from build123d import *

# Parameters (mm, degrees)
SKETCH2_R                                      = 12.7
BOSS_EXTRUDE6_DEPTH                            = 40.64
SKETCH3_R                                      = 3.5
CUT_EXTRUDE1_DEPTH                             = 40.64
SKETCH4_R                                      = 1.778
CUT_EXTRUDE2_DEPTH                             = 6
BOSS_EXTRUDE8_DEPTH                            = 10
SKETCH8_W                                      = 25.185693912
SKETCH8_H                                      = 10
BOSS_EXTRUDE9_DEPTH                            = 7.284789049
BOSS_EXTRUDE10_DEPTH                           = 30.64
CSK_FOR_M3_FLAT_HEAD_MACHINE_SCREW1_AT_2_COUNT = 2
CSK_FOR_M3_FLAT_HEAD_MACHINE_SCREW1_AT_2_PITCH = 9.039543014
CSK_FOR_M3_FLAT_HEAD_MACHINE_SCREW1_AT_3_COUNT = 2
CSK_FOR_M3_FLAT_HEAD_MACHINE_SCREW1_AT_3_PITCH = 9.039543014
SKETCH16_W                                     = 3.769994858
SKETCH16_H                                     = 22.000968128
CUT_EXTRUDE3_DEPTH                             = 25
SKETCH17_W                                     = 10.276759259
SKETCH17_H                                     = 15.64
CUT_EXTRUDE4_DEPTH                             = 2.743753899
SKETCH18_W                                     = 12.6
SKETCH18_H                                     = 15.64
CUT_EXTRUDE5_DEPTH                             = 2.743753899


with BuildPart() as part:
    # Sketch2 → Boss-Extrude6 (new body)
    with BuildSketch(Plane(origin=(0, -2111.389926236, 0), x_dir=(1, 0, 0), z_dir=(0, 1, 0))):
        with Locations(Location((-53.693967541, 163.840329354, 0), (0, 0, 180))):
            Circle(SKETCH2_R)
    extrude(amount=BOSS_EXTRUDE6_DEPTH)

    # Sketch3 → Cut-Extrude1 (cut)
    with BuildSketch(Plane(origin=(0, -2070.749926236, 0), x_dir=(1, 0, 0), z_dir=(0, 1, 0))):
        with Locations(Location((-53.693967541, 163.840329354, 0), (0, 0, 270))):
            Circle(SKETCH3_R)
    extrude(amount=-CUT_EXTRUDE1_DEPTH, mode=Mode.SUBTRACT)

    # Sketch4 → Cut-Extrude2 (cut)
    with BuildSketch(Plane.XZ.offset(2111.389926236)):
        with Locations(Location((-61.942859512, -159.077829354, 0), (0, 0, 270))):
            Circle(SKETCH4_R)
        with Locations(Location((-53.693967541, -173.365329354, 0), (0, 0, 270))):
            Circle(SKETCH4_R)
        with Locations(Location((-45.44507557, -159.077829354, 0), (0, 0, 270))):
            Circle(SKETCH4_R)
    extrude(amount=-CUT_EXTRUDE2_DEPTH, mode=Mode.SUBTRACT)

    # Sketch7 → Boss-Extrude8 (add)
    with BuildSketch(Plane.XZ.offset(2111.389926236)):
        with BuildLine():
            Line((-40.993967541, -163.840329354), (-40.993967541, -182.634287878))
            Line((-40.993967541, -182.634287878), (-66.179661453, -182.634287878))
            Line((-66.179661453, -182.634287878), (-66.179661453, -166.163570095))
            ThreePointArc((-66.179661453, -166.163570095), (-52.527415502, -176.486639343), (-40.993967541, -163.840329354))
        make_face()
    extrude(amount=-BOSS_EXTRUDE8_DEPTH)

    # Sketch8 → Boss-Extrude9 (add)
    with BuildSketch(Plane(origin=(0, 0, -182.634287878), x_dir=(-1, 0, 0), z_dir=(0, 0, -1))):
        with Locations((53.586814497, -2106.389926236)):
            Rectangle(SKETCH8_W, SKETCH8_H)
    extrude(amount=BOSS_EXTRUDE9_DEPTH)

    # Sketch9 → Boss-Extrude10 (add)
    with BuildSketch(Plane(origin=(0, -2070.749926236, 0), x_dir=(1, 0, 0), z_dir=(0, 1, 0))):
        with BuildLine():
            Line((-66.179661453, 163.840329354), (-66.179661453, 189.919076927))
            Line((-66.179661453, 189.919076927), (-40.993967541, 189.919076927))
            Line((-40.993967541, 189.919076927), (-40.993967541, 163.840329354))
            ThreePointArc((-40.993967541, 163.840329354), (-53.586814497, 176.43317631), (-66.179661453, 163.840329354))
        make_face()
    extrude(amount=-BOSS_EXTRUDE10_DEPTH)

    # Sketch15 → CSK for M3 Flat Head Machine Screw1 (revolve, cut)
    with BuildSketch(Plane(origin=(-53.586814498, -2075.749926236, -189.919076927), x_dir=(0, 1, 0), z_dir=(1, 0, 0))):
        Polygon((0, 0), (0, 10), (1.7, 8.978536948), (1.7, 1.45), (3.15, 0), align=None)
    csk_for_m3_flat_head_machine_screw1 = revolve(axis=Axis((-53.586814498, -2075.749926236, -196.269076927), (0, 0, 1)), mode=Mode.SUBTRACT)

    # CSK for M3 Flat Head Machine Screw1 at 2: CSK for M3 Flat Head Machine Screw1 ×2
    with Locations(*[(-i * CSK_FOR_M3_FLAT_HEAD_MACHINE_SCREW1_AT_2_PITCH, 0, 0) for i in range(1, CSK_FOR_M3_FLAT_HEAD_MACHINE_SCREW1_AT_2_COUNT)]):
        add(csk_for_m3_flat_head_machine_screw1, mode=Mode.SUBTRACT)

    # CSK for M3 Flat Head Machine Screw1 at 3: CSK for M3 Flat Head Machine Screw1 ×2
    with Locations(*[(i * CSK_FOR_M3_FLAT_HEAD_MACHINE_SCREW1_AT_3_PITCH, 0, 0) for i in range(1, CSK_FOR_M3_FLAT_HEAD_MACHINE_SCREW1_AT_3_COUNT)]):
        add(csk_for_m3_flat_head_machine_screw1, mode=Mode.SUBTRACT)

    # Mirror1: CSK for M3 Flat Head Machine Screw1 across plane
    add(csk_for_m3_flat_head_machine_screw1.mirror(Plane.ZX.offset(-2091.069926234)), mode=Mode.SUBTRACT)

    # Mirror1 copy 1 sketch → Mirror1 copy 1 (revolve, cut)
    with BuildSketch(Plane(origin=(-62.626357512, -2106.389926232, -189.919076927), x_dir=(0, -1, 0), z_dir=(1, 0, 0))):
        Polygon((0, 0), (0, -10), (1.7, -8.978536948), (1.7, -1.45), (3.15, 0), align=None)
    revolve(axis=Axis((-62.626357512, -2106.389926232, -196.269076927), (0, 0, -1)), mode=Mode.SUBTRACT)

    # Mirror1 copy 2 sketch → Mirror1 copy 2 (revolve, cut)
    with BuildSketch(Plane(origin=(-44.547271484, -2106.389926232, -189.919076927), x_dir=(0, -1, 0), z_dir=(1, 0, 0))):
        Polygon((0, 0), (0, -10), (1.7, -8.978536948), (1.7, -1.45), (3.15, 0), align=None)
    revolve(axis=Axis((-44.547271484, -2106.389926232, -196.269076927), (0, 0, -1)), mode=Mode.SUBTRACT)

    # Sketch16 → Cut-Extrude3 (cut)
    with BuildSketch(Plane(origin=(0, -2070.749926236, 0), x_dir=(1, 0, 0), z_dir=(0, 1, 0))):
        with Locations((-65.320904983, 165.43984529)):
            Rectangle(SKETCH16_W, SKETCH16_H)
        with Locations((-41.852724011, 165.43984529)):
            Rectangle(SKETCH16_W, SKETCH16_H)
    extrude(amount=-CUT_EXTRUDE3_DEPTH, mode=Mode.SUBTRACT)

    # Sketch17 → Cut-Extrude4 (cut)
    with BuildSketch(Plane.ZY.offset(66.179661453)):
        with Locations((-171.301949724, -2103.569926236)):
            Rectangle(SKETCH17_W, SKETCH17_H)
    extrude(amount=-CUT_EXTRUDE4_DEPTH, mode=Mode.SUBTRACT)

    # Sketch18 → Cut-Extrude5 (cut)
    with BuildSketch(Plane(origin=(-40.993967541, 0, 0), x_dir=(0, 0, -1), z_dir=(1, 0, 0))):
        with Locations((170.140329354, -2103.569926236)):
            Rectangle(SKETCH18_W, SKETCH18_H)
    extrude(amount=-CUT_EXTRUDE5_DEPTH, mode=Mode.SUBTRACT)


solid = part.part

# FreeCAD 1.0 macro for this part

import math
import FreeCAD as App
import Part
import Sketcher
from FreeCAD import Vector
Q = App.Units.Quantity

doc = App.newDocument("Part")
body = doc.addObject("PartDesign::Body", "Body")

sketch1 = doc.addObject("Sketcher::SketchObject", "Sketch")
body.addObject(sketch1)
sketch1.AttachmentSupport = (doc.XZ_Plane, [""])
sketch1.MapMode = "FlatFace"
sketch1.AttachmentOffset = App.Placement(Vector(0, 0, 2111.389926), App.Rotation())
sketch1.addGeometry(Part.Circle(Vector(-54, -164, 0), Vector(0, 0, 1), 13), False)
sketch1.addConstraint([
    Sketcher.Constraint("Diameter", 0, Q("25.4 mm")),
    Sketcher.Constraint("DistanceY", 0, 3, -1, 1, Q("163.840329 mm")),
    Sketcher.Constraint("DistanceX", 0, 3, -1, 1, Q("53.693968 mm")),
])
pad1 = doc.addObject("PartDesign::Pad", "Pad")
body.addObject(pad1)
pad1.Profile = sketch1
pad1.Length = 40.64
pad1.Reversed = True

sketch2 = doc.addObject("Sketcher::SketchObject", "Sketch001")
body.addObject(sketch2)
sketch2.AttachmentSupport = (doc.XZ_Plane, [""])
sketch2.MapMode = "FlatFace"
sketch2.AttachmentOffset = App.Placement(Vector(0, 0, 2070.749926), App.Rotation())
sketch2.addGeometry(Part.Circle(Vector(-53.7, -163.8, 0), Vector(0, 0, 1), 3.5), False)
sketch2.addConstraint([
    Sketcher.Constraint("Diameter", 0, Q("7 mm")),
    Sketcher.Constraint("DistanceY", 0, 3, -1, 1, Q("163.840329 mm")),
    Sketcher.Constraint("DistanceX", 0, 3, -1, 1, Q("53.693968 mm")),
])
pocket1 = doc.addObject("PartDesign::Pocket", "Pocket")
body.addObject(pocket1)
pocket1.Profile = sketch2
pocket1.Length = 40.64
pocket1.Reversed = True

sketch3 = doc.addObject("Sketcher::SketchObject", "Sketch002")
body.addObject(sketch3)
sketch3.AttachmentSupport = (doc.XZ_Plane, [""])
sketch3.MapMode = "FlatFace"
sketch3.AttachmentOffset = App.Placement(Vector(0, 0, 2111.389926), App.Rotation())
sketch3.addGeometry([
    Part.Circle(Vector(-61.9, -159.1, 0), Vector(0, 0, 1), 1.8),
    Part.Circle(Vector(-53.7, -173.4, 0), Vector(0, 0, 1), 1.8),
    Part.Circle(Vector(-45.4, -159.1, 0), Vector(0, 0, 1), 1.8),
], False)
sketch3.addConstraint([
    Sketcher.Constraint("Equal", 0, 1),
    Sketcher.Constraint("Equal", 1, 2),
    Sketcher.Constraint("Horizontal", 0, 3, 2, 3),
    Sketcher.Constraint("Diameter", 0, Q("3.556 mm")),
    Sketcher.Constraint("DistanceY", 1, 3, 0, 3, Q("14.2875 mm")),
    Sketcher.Constraint("DistanceX", 0, 3, -1, 1, Q("61.94286 mm")),
    Sketcher.Constraint("DistanceY", 0, 3, -1, 1, Q("159.077829 mm")),
    Sketcher.Constraint("DistanceX", 0, 3, 1, 3, Q("8.248892 mm")),
    Sketcher.Constraint("DistanceX", 1, 3, 2, 3, Q("8.248892 mm")),
])
pocket2 = doc.addObject("PartDesign::Pocket", "Pocket001")
body.addObject(pocket2)
pocket2.Profile = sketch3
pocket2.Length = 6

sketch4 = doc.addObject("Sketcher::SketchObject", "Sketch003")
body.addObject(sketch4)
sketch4.AttachmentSupport = (doc.XZ_Plane, [""])
sketch4.MapMode = "FlatFace"
sketch4.AttachmentOffset = App.Placement(Vector(0, 0, 2111.389926), App.Rotation())
sketch4.addGeometry([
    Part.LineSegment(Vector(-41, -183, 0), Vector(-41, -164, 0)),
    Part.ArcOfCircle(Part.Circle(Vector(-54, -164, 0), Vector(0, 0, 1), 13), math.radians(-169), math.radians(0)),
    Part.LineSegment(Vector(-66, -166, 0), Vector(-66, -183, 0)),
    Part.LineSegment(Vector(-66, -183, 0), Vector(-41, -183, 0)),
], False)
sketch4.addConstraint([
    Sketcher.Constraint("Tangent", 0, 2, 1, 2),
    Sketcher.Constraint("Coincident", 1, 1, 2, 1),
    Sketcher.Constraint("Coincident", 2, 2, 3, 1),
    Sketcher.Constraint("Coincident", 3, 2, 0, 1),
    Sketcher.Constraint("Vertical", 0),
    Sketcher.Constraint("Vertical", 2),
    Sketcher.Constraint("Horizontal", 3),
    Sketcher.Constraint("Radius", 1, Q("12.7 mm")),
    Sketcher.Constraint("DistanceY", 0, 1, 0, 2, Q("18.793959 mm")),
    Sketcher.Constraint("DistanceX", 3, 1, 3, 2, Q("25.185694 mm")),
    Sketcher.Constraint("DistanceY", 1, 3, -1, 1, Q("163.840329 mm")),
    Sketcher.Constraint("DistanceX", 1, 1, -1, 1, Q("66.179661 mm")),
])
pad2 = doc.addObject("PartDesign::Pad", "Pad001")
body.addObject(pad2)
pad2.Profile = sketch4
pad2.Length = 10
pad2.Reversed = True

sketch5 = doc.addObject("Sketcher::SketchObject", "Sketch004")
body.addObject(sketch5)
sketch5.AttachmentSupport = (doc.XY_Plane, [""])
sketch5.MapMode = "FlatFace"
sketch5.AttachmentOffset = App.Placement(Vector(0, 0, -182.634288), App.Rotation())
sketch5.addGeometry([
    Part.LineSegment(Vector(-41, -2101, 0), Vector(-41, -2111, 0)),
    Part.LineSegment(Vector(-41, -2111, 0), Vector(-66, -2111, 0)),
    Part.LineSegment(Vector(-66, -2111, 0), Vector(-66, -2101, 0)),
    Part.LineSegment(Vector(-66, -2101, 0), Vector(-41, -2101, 0)),
], False)
sketch5.addConstraint([
    Sketcher.Constraint("Coincident", 0, 2, 1, 1),
    Sketcher.Constraint("Coincident", 1, 2, 2, 1),
    Sketcher.Constraint("Coincident", 2, 2, 3, 1),
    Sketcher.Constraint("Coincident", 3, 2, 0, 1),
    Sketcher.Constraint("Vertical", 0),
    Sketcher.Constraint("Horizontal", 1),
    Sketcher.Constraint("Vertical", 2),
    Sketcher.Constraint("Horizontal", 3),
    Sketcher.Constraint("DistanceY", 0, 2, 0, 1, Q("10 mm")),
    Sketcher.Constraint("DistanceX", 1, 2, 1, 1, Q("25.185694 mm")),
    Sketcher.Constraint("DistanceX", 1, 2, -1, 1, Q("66.179661 mm")),
    Sketcher.Constraint("DistanceY", 0, 2, -1, 1, Q("2111.389926 mm")),
])
pad3 = doc.addObject("PartDesign::Pad", "Pad002")
body.addObject(pad3)
pad3.Profile = sketch5
pad3.Length = 7.284789
pad3.Reversed = True

sketch6 = doc.addObject("Sketcher::SketchObject", "Sketch005")
body.addObject(sketch6)
sketch6.AttachmentSupport = (doc.XZ_Plane, [""])
sketch6.MapMode = "FlatFace"
sketch6.AttachmentOffset = App.Placement(Vector(0, 0, 2070.749926), App.Rotation())
sketch6.addGeometry([
    Part.LineSegment(Vector(-66, -190, 0), Vector(-66, -164, 0)),
    Part.ArcOfCircle(Part.Circle(Vector(-54, -164, 0), Vector(0, 0, 1), 13), math.radians(180), math.radians(360)),
    Part.LineSegment(Vector(-41, -164, 0), Vector(-41, -190, 0)),
    Part.LineSegment(Vector(-41, -190, 0), Vector(-66, -190, 0)),
], False)
sketch6.addConstraint([
    Sketcher.Constraint("Tangent", 0, 2, 1, 1),
    Sketcher.Constraint("Tangent", 1, 2, 2, 1),
    Sketcher.Constraint("Coincident", 2, 2, 3, 1),
    Sketcher.Constraint("Coincident", 3, 2, 0, 1),
    Sketcher.Constraint("Vertical", 0),
    Sketcher.Constraint("Vertical", 2),
    Sketcher.Constraint("Horizontal", 3),
    Sketcher.Constraint("Radius", 1, Q("12.592847 mm")),
    Sketcher.Constraint("DistanceY", 0, 1, 0, 2, Q("26.078748 mm")),
    Sketcher.Constraint("DistanceY", 1, 3, -1, 1, Q("163.840329 mm")),
    Sketcher.Constraint("DistanceX", 0, 2, -1, 1, Q("66.179661 mm")),
])
pad4 = doc.addObject("PartDesign::Pad", "Pad003")
body.addObject(pad4)
pad4.Profile = sketch6
pad4.Length = 30.64

sketch7 = doc.addObject("Sketcher::SketchObject", "Sketch006")
body.addObject(sketch7)
sketch7.AttachmentSupport = (doc.YZ_Plane, [""])
sketch7.MapMode = "FlatFace"
sketch7.AttachmentOffset = App.Placement(Vector(0, 0, -53.586814), App.Rotation())
sketch7.addGeometry([
    Part.LineSegment(Vector(-2075.7, -179.9, 0), Vector(-2075.7, -189.9, 0)),
    Part.LineSegment(Vector(-2075.7, -189.9, 0), Vector(-2072.6, -189.9, 0)),
    Part.LineSegment(Vector(-2072.6, -189.9, 0), Vector(-2074, -188.5, 0)),
    Part.LineSegment(Vector(-2074, -188.5, 0), Vector(-2074, -180.9, 0)),
    Part.LineSegment(Vector(-2074, -180.9, 0), Vector(-2075.7, -179.9, 0)),
], False)
sketch7.addGeometry(Part.LineSegment(Vector(-2075.7, -189.9, 0), Vector(-2075.7, -179.9, 0)), True)
sketch7.addConstraint([
    Sketcher.Constraint("Coincident", 0, 2, 1, 1),
    Sketcher.Constraint("Coincident", 1, 2, 2, 1),
    Sketcher.Constraint("Coincident", 2, 2, 3, 1),
    Sketcher.Constraint("Coincident", 3, 2, 4, 1),
    Sketcher.Constraint("Coincident", 4, 2, 0, 1),
    Sketcher.Constraint("Vertical", 0),
    Sketcher.Constraint("Horizontal", 1),
    Sketcher.Constraint("Vertical", 3),
    Sketcher.Constraint("Vertical", 5),
    Sketcher.Constraint("Coincident", 5, 1, 0, 2),
    Sketcher.Constraint("Equal", 0, 5),
    Sketcher.Constraint("DistanceY", 0, 2, 0, 1, Q("10 mm")),
    Sketcher.Constraint("Angle", 2, Q("135 deg")),
    Sketcher.Constraint("Angle", 4, Q("149 deg")),
    Sketcher.Constraint("DistanceX", 1, 1, 1, 2, Q("3.15 mm")),
    Sketcher.Constraint("DistanceX", 0, 2, 2, 2, Q("1.7 mm")),
    Sketcher.Constraint("DistanceY", 3, 2, -1, 1, Q("180.94054 mm")),
    Sketcher.Constraint("DistanceX", 0, 2, -1, 1, Q("2075.749926 mm")),
])
groove = doc.addObject("PartDesign::Groove", "Groove")
body.addObject(groove)
groove.Profile = sketch7
groove.ReferenceAxis = (sketch7, ["Axis0"])
groove.Angle = 360
doc.recompute()

linearpattern = doc.addObject("PartDesign::LinearPattern", "LinearPattern")
body.addObject(linearpattern)
linearpattern.Originals = [groove]
linearpattern.Direction = (doc.X_Axis, [""])
linearpattern.Mode = "offset"
linearpattern.Offset = 9.039543
linearpattern.Occurrences = 2
linearpattern.Reversed = True
body.Tip = linearpattern
doc.recompute()

linearpattern2 = doc.addObject("PartDesign::LinearPattern", "LinearPattern001")
body.addObject(linearpattern2)
linearpattern2.Originals = [groove]
linearpattern2.Direction = (doc.X_Axis, [""])
linearpattern2.Mode = "offset"
linearpattern2.Offset = 9.039543
linearpattern2.Occurrences = 2
body.Tip = linearpattern2
doc.recompute()

datumplane = doc.addObject("PartDesign::Plane", "DatumPlane")
body.addObject(datumplane)
datumplane.AttachmentSupport = (doc.XZ_Plane, [""])
datumplane.MapMode = "FlatFace"
datumplane.AttachmentOffset = App.Placement(Vector(0, 0, 2091.069926), App.Rotation())
mirrored = doc.addObject("PartDesign::Mirrored", "Mirrored")
body.addObject(mirrored)
mirrored.Originals = [groove]
mirrored.MirrorPlane = (datumplane, [""])
body.Tip = mirrored

sketch8 = doc.addObject("Sketcher::SketchObject", "Sketch007")
body.addObject(sketch8)
sketch8.AttachmentSupport = (doc.YZ_Plane, [""])
sketch8.MapMode = "FlatFace"
sketch8.AttachmentOffset = App.Placement(Vector(0, 0, -62.626358), App.Rotation())
sketch8.addGeometry([
    Part.LineSegment(Vector(-2106.4, -189.9, 0), Vector(-2106.4, -179.9, 0)),
    Part.LineSegment(Vector(-2106.4, -179.9, 0), Vector(-2108.1, -180.9, 0)),
    Part.LineSegment(Vector(-2108.1, -180.9, 0), Vector(-2108.1, -188.5, 0)),
    Part.LineSegment(Vector(-2108.1, -188.5, 0), Vector(-2109.5, -189.9, 0)),
    Part.LineSegment(Vector(-2109.5, -189.9, 0), Vector(-2106.4, -189.9, 0)),
], False)
sketch8.addGeometry(Part.LineSegment(Vector(-2106.4, -179.9, 0), Vector(-2106.4, -189.9, 0)), True)
sketch8.addConstraint([
    Sketcher.Constraint("Coincident", 0, 2, 1, 1),
    Sketcher.Constraint("Coincident", 1, 2, 2, 1),
    Sketcher.Constraint("Coincident", 2, 2, 3, 1),
    Sketcher.Constraint("Coincident", 3, 2, 4, 1),
    Sketcher.Constraint("Coincident", 4, 2, 0, 1),
    Sketcher.Constraint("Vertical", 0),
    Sketcher.Constraint("Vertical", 2),
    Sketcher.Constraint("Horizontal", 4),
    Sketcher.Constraint("Vertical", 5),
    Sketcher.Constraint("Coincident", 5, 1, 0, 2),
    Sketcher.Constraint("Horizontal", 3, 2, 5, 2),
    Sketcher.Constraint("DistanceY", 0, 1, 0, 2, Q("10 mm")),
    Sketcher.Constraint("Angle", 1, Q("-149 deg")),
    Sketcher.Constraint("Angle", 3, Q("-135 deg")),
    Sketcher.Constraint("DistanceX", 4, 1, 4, 2, Q("3.15 mm")),
    Sketcher.Constraint("DistanceX", 1, 2, 0, 2, Q("1.7 mm")),
    Sketcher.Constraint("DistanceY", 1, 2, -1, 1, Q("180.94054 mm")),
    Sketcher.Constraint("DistanceX", 0, 2, -1, 1, Q("2106.389926 mm")),
])
groove2 = doc.addObject("PartDesign::Groove", "Groove001")
body.addObject(groove2)
groove2.Profile = sketch8
groove2.ReferenceAxis = (sketch8, ["Axis0"])
groove2.Angle = 360

sketch9 = doc.addObject("Sketcher::SketchObject", "Sketch008")
body.addObject(sketch9)
sketch9.AttachmentSupport = (doc.YZ_Plane, [""])
sketch9.MapMode = "FlatFace"
sketch9.AttachmentOffset = App.Placement(Vector(0, 0, -44.547271), App.Rotation())
sketch9.addGeometry([
    Part.LineSegment(Vector(-2106.4, -189.9, 0), Vector(-2106.4, -179.9, 0)),
    Part.LineSegment(Vector(-2106.4, -179.9, 0), Vector(-2108.1, -180.9, 0)),
    Part.LineSegment(Vector(-2108.1, -180.9, 0), Vector(-2108.1, -188.5, 0)),
    Part.LineSegment(Vector(-2108.1, -188.5, 0), Vector(-2109.5, -189.9, 0)),
    Part.LineSegment(Vector(-2109.5, -189.9, 0), Vector(-2106.4, -189.9, 0)),
], False)
sketch9.addGeometry(Part.LineSegment(Vector(-2106.4, -179.9, 0), Vector(-2106.4, -189.9, 0)), True)
sketch9.addConstraint([
    Sketcher.Constraint("Coincident", 0, 2, 1, 1),
    Sketcher.Constraint("Coincident", 1, 2, 2, 1),
    Sketcher.Constraint("Coincident", 2, 2, 3, 1),
    Sketcher.Constraint("Coincident", 3, 2, 4, 1),
    Sketcher.Constraint("Coincident", 4, 2, 0, 1),
    Sketcher.Constraint("Vertical", 0),
    Sketcher.Constraint("Vertical", 2),
    Sketcher.Constraint("Horizontal", 4),
    Sketcher.Constraint("Vertical", 5),
    Sketcher.Constraint("Coincident", 5, 1, 0, 2),
    Sketcher.Constraint("Horizontal", 3, 2, 5, 2),
    Sketcher.Constraint("DistanceY", 0, 1, 0, 2, Q("10 mm")),
    Sketcher.Constraint("Angle", 1, Q("-149 deg")),
    Sketcher.Constraint("Angle", 3, Q("-135 deg")),
    Sketcher.Constraint("DistanceX", 4, 1, 4, 2, Q("3.15 mm")),
    Sketcher.Constraint("DistanceX", 1, 2, 0, 2, Q("1.7 mm")),
    Sketcher.Constraint("DistanceY", 1, 2, -1, 1, Q("180.94054 mm")),
    Sketcher.Constraint("DistanceX", 0, 2, -1, 1, Q("2106.389926 mm")),
])
groove3 = doc.addObject("PartDesign::Groove", "Groove002")
body.addObject(groove3)
groove3.Profile = sketch9
groove3.ReferenceAxis = (sketch9, ["Axis0"])
groove3.Angle = 360

sketch10 = doc.addObject("Sketcher::SketchObject", "Sketch009")
body.addObject(sketch10)
sketch10.AttachmentSupport = (doc.XZ_Plane, [""])
sketch10.MapMode = "FlatFace"
sketch10.AttachmentOffset = App.Placement(Vector(0, 0, 2070.749926), App.Rotation())
sketch10.addGeometry([
    Part.LineSegment(Vector(-67.2, -176.4, 0), Vector(-67.2, -154.4, 0)),
    Part.LineSegment(Vector(-67.2, -154.4, 0), Vector(-63.4, -154.4, 0)),
    Part.LineSegment(Vector(-63.4, -154.4, 0), Vector(-63.4, -176.4, 0)),
    Part.LineSegment(Vector(-63.4, -176.4, 0), Vector(-67.2, -176.4, 0)),
    Part.LineSegment(Vector(-43.7, -176.4, 0), Vector(-43.7, -154.4, 0)),
    Part.LineSegment(Vector(-43.7, -154.4, 0), Vector(-40, -154.4, 0)),
    Part.LineSegment(Vector(-40, -154.4, 0), Vector(-40, -176.4, 0)),
    Part.LineSegment(Vector(-40, -176.4, 0), Vector(-43.7, -176.4, 0)),
], False)
sketch10.addConstraint([
    Sketcher.Constraint("Coincident", 0, 2, 1, 1),
    Sketcher.Constraint("Coincident", 1, 2, 2, 1),
    Sketcher.Constraint("Coincident", 2, 2, 3, 1),
    Sketcher.Constraint("Coincident", 3, 2, 0, 1),
    Sketcher.Constraint("Coincident", 4, 2, 5, 1),
    Sketcher.Constraint("Coincident", 5, 2, 6, 1),
    Sketcher.Constraint("Coincident", 6, 2, 7, 1),
    Sketcher.Constraint("Coincident", 7, 2, 4, 1),
    Sketcher.Constraint("Vertical", 0),
    Sketcher.Constraint("Horizontal", 1),
    Sketcher.Constraint("Vertical", 2),
    Sketcher.Constraint("Horizontal", 3),
    Sketcher.Constraint("Vertical", 4),
    Sketcher.Constraint("Horizontal", 5),
    Sketcher.Constraint("Vertical", 6),
    Sketcher.Constraint("Horizontal", 7),
    Sketcher.Constraint("Horizontal", 1, 2, 4, 2),
    Sketcher.Constraint("Horizontal", 3, 2, 6, 2),
    Sketcher.Constraint("Equal", 3, 5),
    Sketcher.Constraint("DistanceY", 0, 1, 0, 2, Q("22.000968 mm")),
    Sketcher.Constraint("DistanceX", 1, 1, 1, 2, Q("3.769995 mm")),
    Sketcher.Constraint("DistanceY", 0, 2, -1, 1, Q("154.439361 mm")),
    Sketcher.Constraint("DistanceX", 4, 2, -1, 1, Q("43.737721 mm")),
    Sketcher.Constraint("DistanceX", 0, 2, 4, 2, Q("23.468181 mm")),
])
pocket3 = doc.addObject("PartDesign::Pocket", "Pocket002")
body.addObject(pocket3)
pocket3.Profile = sketch10
pocket3.Length = 25
pocket3.Reversed = True

sketch11 = doc.addObject("Sketcher::SketchObject", "Sketch010")
body.addObject(sketch11)
sketch11.AttachmentSupport = (doc.YZ_Plane, [""])
sketch11.MapMode = "FlatFace"
sketch11.AttachmentOffset = App.Placement(Vector(0, 0, -66.179661), App.Rotation())
sketch11.addGeometry([
    Part.LineSegment(Vector(-2096, -176, 0), Vector(-2111, -176, 0)),
    Part.LineSegment(Vector(-2111, -176, 0), Vector(-2111, -166, 0)),
    Part.LineSegment(Vector(-2111, -166, 0), Vector(-2096, -166, 0)),
    Part.LineSegment(Vector(-2096, -166, 0), Vector(-2096, -176, 0)),
], False)
sketch11.addConstraint([
    Sketcher.Constraint("Coincident", 0, 2, 1, 1),
    Sketcher.Constraint("Coincident", 1, 2, 2, 1),
    Sketcher.Constraint("Coincident", 2, 2, 3, 1),
    Sketcher.Constraint("Coincident", 3, 2, 0, 1),
    Sketcher.Constraint("Horizontal", 0),
    Sketcher.Constraint("Vertical", 1),
    Sketcher.Constraint("Horizontal", 2),
    Sketcher.Constraint("Vertical", 3),
    Sketcher.Constraint("DistanceX", 0, 2, 0, 1, Q("15.64 mm")),
    Sketcher.Constraint("DistanceY", 1, 1, 1, 2, Q("10.276759 mm")),
    Sketcher.Constraint("DistanceY", 0, 2, -1, 1, Q("176.440329 mm")),
    Sketcher.Constraint("DistanceX", 0, 2, -1, 1, Q("2111.389926 mm")),
])
pocket4 = doc.addObject("PartDesign::Pocket", "Pocket003")
body.addObject(pocket4)
pocket4.Profile = sketch11
pocket4.Length = 2.743754
pocket4.Reversed = True

sketch12 = doc.addObject("Sketcher::SketchObject", "Sketch011")
body.addObject(sketch12)
sketch12.AttachmentSupport = (doc.YZ_Plane, [""])
sketch12.MapMode = "FlatFace"
sketch12.AttachmentOffset = App.Placement(Vector(0, 0, -40.993968), App.Rotation())
sketch12.addGeometry([
    Part.LineSegment(Vector(-2096, -164, 0), Vector(-2111, -164, 0)),
    Part.LineSegment(Vector(-2111, -164, 0), Vector(-2111, -176, 0)),
    Part.LineSegment(Vector(-2111, -176, 0), Vector(-2096, -176, 0)),
    Part.LineSegment(Vector(-2096, -176, 0), Vector(-2096, -164, 0)),
], False)
sketch12.addConstraint([
    Sketcher.Constraint("Coincident", 0, 2, 1, 1),
    Sketcher.Constraint("Coincident", 1, 2, 2, 1),
    Sketcher.Constraint("Coincident", 2, 2, 3, 1),
    Sketcher.Constraint("Coincident", 3, 2, 0, 1),
    Sketcher.Constraint("Horizontal", 0),
    Sketcher.Constraint("Vertical", 1),
    Sketcher.Constraint("Horizontal", 2),
    Sketcher.Constraint("Vertical", 3),
    Sketcher.Constraint("DistanceY", 1, 2, 1, 1, Q("12.6 mm")),
    Sketcher.Constraint("DistanceX", 0, 2, 0, 1, Q("15.64 mm")),
    Sketcher.Constraint("DistanceY", 0, 2, -1, 1, Q("163.840329 mm")),
    Sketcher.Constraint("DistanceX", 0, 2, -1, 1, Q("2111.389926 mm")),
])
pocket5 = doc.addObject("PartDesign::Pocket", "Pocket004")
body.addObject(pocket5)
pocket5.Profile = sketch12
pocket5.Length = 2.743754

doc.recompute()
